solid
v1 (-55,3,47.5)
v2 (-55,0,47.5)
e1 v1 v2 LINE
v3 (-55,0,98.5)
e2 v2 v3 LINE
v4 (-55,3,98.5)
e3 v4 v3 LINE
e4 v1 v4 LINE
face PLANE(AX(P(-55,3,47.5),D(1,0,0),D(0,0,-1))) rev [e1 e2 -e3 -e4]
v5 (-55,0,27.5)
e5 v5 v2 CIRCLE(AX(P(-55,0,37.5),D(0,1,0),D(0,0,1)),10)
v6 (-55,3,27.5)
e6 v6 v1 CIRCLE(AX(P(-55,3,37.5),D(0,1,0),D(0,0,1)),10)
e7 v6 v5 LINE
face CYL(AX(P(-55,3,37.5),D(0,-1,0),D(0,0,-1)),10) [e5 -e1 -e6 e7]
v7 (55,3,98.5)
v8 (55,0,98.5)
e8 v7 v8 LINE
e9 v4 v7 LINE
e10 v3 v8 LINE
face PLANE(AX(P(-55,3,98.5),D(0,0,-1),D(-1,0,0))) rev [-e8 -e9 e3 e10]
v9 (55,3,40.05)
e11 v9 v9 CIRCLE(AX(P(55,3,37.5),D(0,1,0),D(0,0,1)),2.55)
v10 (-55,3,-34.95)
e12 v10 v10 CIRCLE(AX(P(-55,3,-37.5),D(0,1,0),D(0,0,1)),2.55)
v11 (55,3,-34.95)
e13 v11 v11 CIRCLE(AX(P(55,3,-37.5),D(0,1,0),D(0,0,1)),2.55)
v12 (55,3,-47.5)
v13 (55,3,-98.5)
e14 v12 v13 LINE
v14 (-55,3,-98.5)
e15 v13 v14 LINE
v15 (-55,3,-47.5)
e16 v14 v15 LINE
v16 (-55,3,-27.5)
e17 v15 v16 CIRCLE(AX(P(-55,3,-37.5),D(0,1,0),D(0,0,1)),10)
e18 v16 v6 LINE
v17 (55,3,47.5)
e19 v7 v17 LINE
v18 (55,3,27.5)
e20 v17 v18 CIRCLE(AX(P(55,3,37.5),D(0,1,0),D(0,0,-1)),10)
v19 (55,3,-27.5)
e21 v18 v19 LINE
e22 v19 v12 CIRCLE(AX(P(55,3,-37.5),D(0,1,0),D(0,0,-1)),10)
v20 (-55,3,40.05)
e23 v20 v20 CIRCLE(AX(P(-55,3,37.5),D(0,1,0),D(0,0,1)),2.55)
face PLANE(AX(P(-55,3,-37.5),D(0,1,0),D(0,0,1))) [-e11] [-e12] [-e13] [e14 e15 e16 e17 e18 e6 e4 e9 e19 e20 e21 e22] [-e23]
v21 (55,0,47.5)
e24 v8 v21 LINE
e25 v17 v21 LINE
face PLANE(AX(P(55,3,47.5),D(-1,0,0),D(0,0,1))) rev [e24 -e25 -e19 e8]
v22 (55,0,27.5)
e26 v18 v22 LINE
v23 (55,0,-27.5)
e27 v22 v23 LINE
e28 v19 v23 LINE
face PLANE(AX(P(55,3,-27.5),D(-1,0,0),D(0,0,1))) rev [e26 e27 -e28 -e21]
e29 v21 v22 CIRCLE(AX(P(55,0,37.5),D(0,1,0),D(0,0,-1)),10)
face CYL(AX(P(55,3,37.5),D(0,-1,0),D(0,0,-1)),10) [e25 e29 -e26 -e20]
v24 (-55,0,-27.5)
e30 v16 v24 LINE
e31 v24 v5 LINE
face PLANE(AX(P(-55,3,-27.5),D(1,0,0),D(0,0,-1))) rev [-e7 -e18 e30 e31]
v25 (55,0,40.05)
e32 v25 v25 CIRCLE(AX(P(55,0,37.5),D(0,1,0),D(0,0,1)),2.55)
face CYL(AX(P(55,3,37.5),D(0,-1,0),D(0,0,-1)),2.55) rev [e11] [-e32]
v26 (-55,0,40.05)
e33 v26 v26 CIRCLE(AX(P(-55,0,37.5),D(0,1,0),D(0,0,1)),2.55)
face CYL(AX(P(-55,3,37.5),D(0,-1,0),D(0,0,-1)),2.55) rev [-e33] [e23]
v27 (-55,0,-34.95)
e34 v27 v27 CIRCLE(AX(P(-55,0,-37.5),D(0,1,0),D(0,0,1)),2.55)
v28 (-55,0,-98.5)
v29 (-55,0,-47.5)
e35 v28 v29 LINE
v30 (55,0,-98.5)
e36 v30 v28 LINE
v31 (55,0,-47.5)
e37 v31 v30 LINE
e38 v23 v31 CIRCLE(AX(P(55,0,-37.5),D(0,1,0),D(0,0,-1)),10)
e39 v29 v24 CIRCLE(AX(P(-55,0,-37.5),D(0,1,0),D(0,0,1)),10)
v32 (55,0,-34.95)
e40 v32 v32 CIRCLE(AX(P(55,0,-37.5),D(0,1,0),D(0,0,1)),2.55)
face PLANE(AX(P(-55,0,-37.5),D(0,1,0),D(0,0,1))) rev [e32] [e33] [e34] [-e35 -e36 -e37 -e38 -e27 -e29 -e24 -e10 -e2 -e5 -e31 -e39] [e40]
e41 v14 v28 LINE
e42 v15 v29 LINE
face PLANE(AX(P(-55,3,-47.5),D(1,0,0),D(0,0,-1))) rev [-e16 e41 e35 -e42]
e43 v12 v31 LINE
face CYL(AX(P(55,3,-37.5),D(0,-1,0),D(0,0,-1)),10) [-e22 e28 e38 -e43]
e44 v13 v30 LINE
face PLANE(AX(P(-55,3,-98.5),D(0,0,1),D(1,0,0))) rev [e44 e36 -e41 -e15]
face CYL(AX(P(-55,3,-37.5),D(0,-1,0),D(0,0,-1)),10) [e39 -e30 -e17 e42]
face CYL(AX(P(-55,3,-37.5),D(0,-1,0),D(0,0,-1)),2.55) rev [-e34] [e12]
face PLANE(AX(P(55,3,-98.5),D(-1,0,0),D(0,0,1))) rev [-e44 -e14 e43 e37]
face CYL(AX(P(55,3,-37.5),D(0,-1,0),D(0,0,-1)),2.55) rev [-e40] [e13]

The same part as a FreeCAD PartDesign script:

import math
import FreeCAD as App
import Part
import Sketcher
Q = App.Units.Quantity

doc = App.newDocument("Part")
params = doc.addObject("Spreadsheet::Sheet", "Params")
for row, (alias, value) in enumerate([
    ("sketch1_radius", "10 mm"),
    ("sketch1_diameter", "5.1 mm"),
    ("sketch1_width", "110 mm"),
    ("sketch1_height", "55 mm"),
    ("sketch1_height2", "51 mm"),
    ("pad1_length", "3 mm"),
], start=1):
    params.set(f"A{row}", alias)
    params.set(f"B{row}", "=" + value)
    params.setAlias(f"B{row}", alias)

body = doc.addObject("PartDesign::Body", "Body")

sketch1 = doc.addObject("Sketcher::SketchObject", "Sketch")
body.addObject(sketch1)
sketch1.AttachmentSupport = (doc.XZ_Plane, [""])
sketch1.MapMode = "FlatFace"
sketch1.addGeometry([
    Part.LineSegment(App.Vector(-55, -27.5, 0), App.Vector(-55, 27.5, 0)),
    Part.ArcOfCircle(Part.Circle(App.Vector(-55, 37.5, 0), App.Vector(0, 0, 1), 10), math.radians(90), math.radians(270)),
    Part.LineSegment(App.Vector(-55, 47.5, 0), App.Vector(-55, 98.5, 0)),
    Part.LineSegment(App.Vector(-55, 98.5, 0), App.Vector(55, 98.5, 0)),
    Part.LineSegment(App.Vector(55, 98.5, 0), App.Vector(55, 47.5, 0)),
    Part.ArcOfCircle(Part.Circle(App.Vector(55, 37.5, 0), App.Vector(0, 0, 1), 10), math.radians(-90), math.radians(90)),
    Part.LineSegment(App.Vector(55, 27.5, 0), App.Vector(55, -27.5, 0)),
    Part.ArcOfCircle(Part.Circle(App.Vector(55, -37.5, 0), App.Vector(0, 0, 1), 10), math.radians(-90), math.radians(90)),
    Part.LineSegment(App.Vector(55, -47.5, 0), App.Vector(55, -98.5, 0)),
    Part.LineSegment(App.Vector(55, -98.5, 0), App.Vector(-55, -98.5, 0)),
    Part.LineSegment(App.Vector(-55, -98.5, 0), App.Vector(-55, -47.5, 0)),
    Part.ArcOfCircle(Part.Circle(App.Vector(-55, -37.5, 0), App.Vector(0, 0, 1), 10), math.radians(90), math.radians(270)),
    Part.Circle(App.Vector(-55, 37.5, 0), App.Vector(0, 0, 1), 2.55),
    Part.Circle(App.Vector(55, 37.5, 0), App.Vector(0, 0, 1), 2.55),
    Part.Circle(App.Vector(-55, -37.5, 0), App.Vector(0, 0, 1), 2.55),
    Part.Circle(App.Vector(55, -37.5, 0), App.Vector(0, 0, 1), 2.55),
], False)
sketch1.addConstraint([
    Sketcher.Constraint("Coincident", 0, 2, 1, 2),
    Sketcher.Constraint("Coincident", 1, 1, 2, 1),
    Sketcher.Constraint("Coincident", 2, 2, 3, 1),
    Sketcher.Constraint("Coincident", 3, 2, 4, 1),
    Sketcher.Constraint("Coincident", 4, 2, 5, 2),
    Sketcher.Constraint("Coincident", 5, 1, 6, 1),
    Sketcher.Constraint("Coincident", 6, 2, 7, 2),
    Sketcher.Constraint("Coincident", 7, 1, 8, 1),
    Sketcher.Constraint("Coincident", 8, 2, 9, 1),
    Sketcher.Constraint("Coincident", 9, 2, 10, 1),
    Sketcher.Constraint("Coincident", 10, 2, 11, 2),
    Sketcher.Constraint("Coincident", 11, 1, 0, 1),
    Sketcher.Constraint("Vertical", 0),
    Sketcher.Constraint("Vertical", 2),
    Sketcher.Constraint("Horizontal", 3),
    Sketcher.Constraint("Vertical", 4),
    Sketcher.Constraint("Vertical", 6),
    Sketcher.Constraint("Vertical", 8),
    Sketcher.Constraint("Horizontal", 9),
    Sketcher.Constraint("Vertical", 10),
    Sketcher.Constraint("Coincident", 12, 3, 1, 3),
    Sketcher.Constraint("Coincident", 13, 3, 5, 3),
    Sketcher.Constraint("Coincident", 14, 3, 11, 3),
    Sketcher.Constraint("Coincident", 15, 3, 7, 3),
    Sketcher.Constraint("Equal", 1, 5),
    Sketcher.Constraint("Equal", 5, 7),
    Sketcher.Constraint("Equal", 7, 11),
    Sketcher.Constraint("Equal", 12, 13),
    Sketcher.Constraint("Equal", 13, 14),
    Sketcher.Constraint("Equal", 14, 15),
    Sketcher.Constraint("Symmetric", 1, 3, 7, 3, -1, 1),
    Sketcher.Constraint("Symmetric", 5, 3, 11, 3, -1, 1),
    Sketcher.Constraint("Symmetric", 2, 2, 8, 2, -1, 1),
    Sketcher.Constraint("Symmetric", 1, 3, 5, 3, -2),
    Sketcher.Constraint("Vertical", 14, 3, 0, 2),
    Sketcher.Constraint("Vertical", 0, 2, 1, 1),
    Sketcher.Constraint("Vertical", 15, 3, 3, 2),
    Sketcher.Constraint("Vertical", 4, 2, 5, 1),
    Sketcher.Constraint("Vertical", 2, 2, 9, 2),
    Sketcher.Constraint("Radius", 1, Q("10 mm")),
    Sketcher.Constraint("Diameter", 12, Q("5.1 mm")),
    Sketcher.Constraint("DistanceX", 3, 1, 3, 2, Q("110 mm")),
    Sketcher.Constraint("DistanceY", 0, 1, 0, 2, Q("55 mm")),
    Sketcher.Constraint("DistanceY", 2, 1, 2, 2, Q("51 mm")),
])
sketch1.setExpression("Constraints[39]", "Params.sketch1_radius")
sketch1.setExpression("Constraints[40]", "Params.sketch1_diameter")
sketch1.setExpression("Constraints[41]", "Params.sketch1_width")
sketch1.setExpression("Constraints[42]", "Params.sketch1_height")
sketch1.setExpression("Constraints[43]", "Params.sketch1_height2")
pad1 = doc.addObject("PartDesign::Pad", "Pad")
body.addObject(pad1)
pad1.Profile = sketch1
pad1.setExpression("Length", "Params.pad1_length")
pad1.Reversed = True

doc.recompute()
